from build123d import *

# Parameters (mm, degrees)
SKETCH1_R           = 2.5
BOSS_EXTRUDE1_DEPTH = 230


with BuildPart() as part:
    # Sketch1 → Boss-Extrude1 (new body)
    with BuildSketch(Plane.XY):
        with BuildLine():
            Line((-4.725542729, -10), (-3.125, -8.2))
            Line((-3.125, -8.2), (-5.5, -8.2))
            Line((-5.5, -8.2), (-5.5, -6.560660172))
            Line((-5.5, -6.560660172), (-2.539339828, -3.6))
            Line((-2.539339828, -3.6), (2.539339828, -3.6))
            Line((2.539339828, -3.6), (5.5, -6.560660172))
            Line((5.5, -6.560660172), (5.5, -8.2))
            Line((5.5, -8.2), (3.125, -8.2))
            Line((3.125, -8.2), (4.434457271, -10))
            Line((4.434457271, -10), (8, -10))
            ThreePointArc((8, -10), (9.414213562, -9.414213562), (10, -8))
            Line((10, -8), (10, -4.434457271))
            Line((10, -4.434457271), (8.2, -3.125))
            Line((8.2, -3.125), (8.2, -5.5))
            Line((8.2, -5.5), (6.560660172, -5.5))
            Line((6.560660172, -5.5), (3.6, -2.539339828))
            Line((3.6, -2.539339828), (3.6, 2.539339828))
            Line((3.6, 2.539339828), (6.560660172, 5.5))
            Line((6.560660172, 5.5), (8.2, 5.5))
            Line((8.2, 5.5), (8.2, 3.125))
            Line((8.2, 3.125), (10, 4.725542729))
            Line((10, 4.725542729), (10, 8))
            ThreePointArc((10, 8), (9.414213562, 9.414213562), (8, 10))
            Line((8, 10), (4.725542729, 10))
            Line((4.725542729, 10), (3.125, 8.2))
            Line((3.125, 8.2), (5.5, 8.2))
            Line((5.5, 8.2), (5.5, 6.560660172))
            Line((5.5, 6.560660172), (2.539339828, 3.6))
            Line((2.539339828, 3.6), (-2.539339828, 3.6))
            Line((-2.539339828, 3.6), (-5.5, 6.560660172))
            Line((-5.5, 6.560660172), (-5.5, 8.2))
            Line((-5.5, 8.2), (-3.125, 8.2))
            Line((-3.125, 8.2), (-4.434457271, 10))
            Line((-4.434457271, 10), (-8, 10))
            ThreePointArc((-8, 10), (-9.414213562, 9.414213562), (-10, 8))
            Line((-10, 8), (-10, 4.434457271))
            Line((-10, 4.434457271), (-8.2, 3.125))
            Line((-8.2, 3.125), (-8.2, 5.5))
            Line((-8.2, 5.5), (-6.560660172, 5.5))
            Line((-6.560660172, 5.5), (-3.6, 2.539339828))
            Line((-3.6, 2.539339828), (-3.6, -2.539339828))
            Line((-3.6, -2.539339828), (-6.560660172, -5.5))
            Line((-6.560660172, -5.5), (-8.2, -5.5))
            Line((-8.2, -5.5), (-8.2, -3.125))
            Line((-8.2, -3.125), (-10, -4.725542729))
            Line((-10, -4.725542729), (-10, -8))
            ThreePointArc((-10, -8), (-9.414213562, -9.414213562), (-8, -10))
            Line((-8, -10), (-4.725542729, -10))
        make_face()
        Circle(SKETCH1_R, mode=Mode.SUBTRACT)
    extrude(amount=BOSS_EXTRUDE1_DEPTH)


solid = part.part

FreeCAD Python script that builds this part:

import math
import FreeCAD as App
import Part
import Sketcher

V = App.Vector
Q = App.Units.Quantity

doc = App.newDocument("Part")
body = doc.addObject("PartDesign::Body", "Body")

sketch1 = body.newObject("Sketcher::SketchObject", "Sketch")
sketch1.AttachmentSupport = (doc.getObject("XY_Plane"), [""])
sketch1.MapMode = "FlatFace"
sketch1.addGeometry(Part.LineSegment(V(-4.7, -10, 0), V(-3.1, -8.2, 0)), False)
sketch1.addGeometry(Part.LineSegment(V(-3.1, -8.2, 0), V(-5.5, -8.2, 0)), False)
sketch1.addGeometry(Part.LineSegment(V(-5.5, -8.2, 0), V(-5.5, -6.6, 0)), False)
sketch1.addGeometry(Part.LineSegment(V(-5.5, -6.6, 0), V(-2.5, -3.6, 0)), False)
sketch1.addGeometry(Part.LineSegment(V(-2.5, -3.6, 0), V(2.5, -3.6, 0)), False)
sketch1.addGeometry(Part.LineSegment(V(2.5, -3.6, 0), V(5.5, -6.6, 0)), False)
sketch1.addGeometry(Part.LineSegment(V(5.5, -6.6, 0), V(5.5, -8.2, 0)), False)
sketch1.addGeometry(Part.LineSegment(V(5.5, -8.2, 0), V(3.1, -8.2, 0)), False)
sketch1.addGeometry(Part.LineSegment(V(3.1, -8.2, 0), V(4.4, -10, 0)), False)
sketch1.addGeometry(Part.LineSegment(V(4.4, -10, 0), V(8, -10, 0)), False)
sketch1.addGeometry(Part.ArcOfCircle(Part.Circle(V(8, -8, 0), V(0, 0, 1), 2), math.radians(-90), math.radians(0)), False)
sketch1.addGeometry(Part.LineSegment(V(10, -8, 0), V(10, -4.4, 0)), False)
sketch1.addGeometry(Part.LineSegment(V(10, -4.4, 0), V(8.2, -3.1, 0)), False)
sketch1.addGeometry(Part.LineSegment(V(8.2, -3.1, 0), V(8.2, -5.5, 0)), False)
sketch1.addGeometry(Part.LineSegment(V(8.2, -5.5, 0), V(6.6, -5.5, 0)), False)
sketch1.addGeometry(Part.LineSegment(V(6.6, -5.5, 0), V(3.6, -2.5, 0)), False)
sketch1.addGeometry(Part.LineSegment(V(3.6, -2.5, 0), V(3.6, 2.5, 0)), False)
sketch1.addGeometry(Part.LineSegment(V(3.6, 2.5, 0), V(6.6, 5.5, 0)), False)
sketch1.addGeometry(Part.LineSegment(V(6.6, 5.5, 0), V(8.2, 5.5, 0)), False)
sketch1.addGeometry(Part.LineSegment(V(8.2, 5.5, 0), V(8.2, 3.1, 0)), False)
sketch1.addGeometry(Part.LineSegment(V(8.2, 3.1, 0), V(10, 4.7, 0)), False)
sketch1.addGeometry(Part.LineSegment(V(10, 4.7, 0), V(10, 8, 0)), False)
sketch1.addGeometry(Part.ArcOfCircle(Part.Circle(V(8, 8, 0), V(0, 0, 1), 2), math.radians(0), math.radians(90)), False)
sketch1.addGeometry(Part.LineSegment(V(8, 10, 0), V(4.7, 10, 0)), False)
sketch1.addGeometry(Part.LineSegment(V(4.7, 10, 0), V(3.1, 8.2, 0)), False)
sketch1.addGeometry(Part.LineSegment(V(3.1, 8.2, 0), V(5.5, 8.2, 0)), False)
sketch1.addGeometry(Part.LineSegment(V(5.5, 8.2, 0), V(5.5, 6.6, 0)), False)
sketch1.addGeometry(Part.LineSegment(V(5.5, 6.6, 0), V(2.5, 3.6, 0)), False)
sketch1.addGeometry(Part.LineSegment(V(2.5, 3.6, 0), V(-2.5, 3.6, 0)), False)
sketch1.addGeometry(Part.LineSegment(V(-2.5, 3.6, 0), V(-5.5, 6.6, 0)), False)
sketch1.addGeometry(Part.LineSegment(V(-5.5, 6.6, 0), V(-5.5, 8.2, 0)), False)
sketch1.addGeometry(Part.LineSegment(V(-5.5, 8.2, 0), V(-3.1, 8.2, 0)), False)
sketch1.addGeometry(Part.LineSegment(V(-3.1, 8.2, 0), V(-4.4, 10, 0)), False)
sketch1.addGeometry(Part.LineSegment(V(-4.4, 10, 0), V(-8, 10, 0)), False)
sketch1.addGeometry(Part.ArcOfCircle(Part.Circle(V(-8, 8, 0), V(0, 0, 1), 2), math.radians(90), math.radians(180)), False)
sketch1.addGeometry(Part.LineSegment(V(-10, 8, 0), V(-10, 4.4, 0)), False)
sketch1.addGeometry(Part.LineSegment(V(-10, 4.4, 0), V(-8.2, 3.1, 0)), False)
sketch1.addGeometry(Part.LineSegment(V(-8.2, 3.1, 0), V(-8.2, 5.5, 0)), False)
sketch1.addGeometry(Part.LineSegment(V(-8.2, 5.5, 0), V(-6.6, 5.5, 0)), False)
sketch1.addGeometry(Part.LineSegment(V(-6.6, 5.5, 0), V(-3.6, 2.5, 0)), False)
sketch1.addGeometry(Part.LineSegment(V(-3.6, 2.5, 0), V(-3.6, -2.5, 0)), False)
sketch1.addGeometry(Part.LineSegment(V(-3.6, -2.5, 0), V(-6.6, -5.5, 0)), False)
sketch1.addGeometry(Part.LineSegment(V(-6.6, -5.5, 0), V(-8.2, -5.5, 0)), False)
sketch1.addGeometry(Part.LineSegment(V(-8.2, -5.5, 0), V(-8.2, -3.1, 0)), False)
sketch1.addGeometry(Part.LineSegment(V(-8.2, -3.1, 0), V(-10, -4.7, 0)), False)
sketch1.addGeometry(Part.LineSegment(V(-10, -4.7, 0), V(-10, -8, 0)), False)
sketch1.addGeometry(Part.ArcOfCircle(Part.Circle(V(-8, -8, 0), V(0, 0, 1), 2), math.radians(-180), math.radians(-90)), False)
sketch1.addGeometry(Part.LineSegment(V(-8, -10, 0), V(-4.7, -10, 0)), False)
sketch1.addGeometry(Part.Circle(V(0, 0, 0), V(0, 0, 1), 2.5), False)
sketch1.addConstraint(Sketcher.Constraint("Coincident", 0, 2, 1, 1))
sketch1.addConstraint(Sketcher.Constraint("Coincident", 1, 2, 2, 1))
sketch1.addConstraint(Sketcher.Constraint("Coincident", 2, 2, 3, 1))
sketch1.addConstraint(Sketcher.Constraint("Coincident", 3, 2, 4, 1))
sketch1.addConstraint(Sketcher.Constraint("Coincident", 4, 2, 5, 1))
sketch1.addConstraint(Sketcher.Constraint("Coincident", 5, 2, 6, 1))
sketch1.addConstraint(Sketcher.Constraint("Coincident", 6, 2, 7, 1))
sketch1.addConstraint(Sketcher.Constraint("Coincident", 7, 2, 8, 1))
sketch1.addConstraint(Sketcher.Constraint("Coincident", 8, 2, 9, 1))
sketch1.addConstraint(Sketcher.Constraint("Tangent", 9, 2, 10, 1))
sketch1.addConstraint(Sketcher.Constraint("Tangent", 10, 2, 11, 1))
sketch1.addConstraint(Sketcher.Constraint("Coincident", 11, 2, 12, 1))
sketch1.addConstraint(Sketcher.Constraint("Coincident", 12, 2, 13, 1))
sketch1.addConstraint(Sketcher.Constraint("Coincident", 13, 2, 14, 1))
sketch1.addConstraint(Sketcher.Constraint("Coincident", 14, 2, 15, 1))
sketch1.addConstraint(Sketcher.Constraint("Coincident", 15, 2, 16, 1))
sketch1.addConstraint(Sketcher.Constraint("Coincident", 16, 2, 17, 1))
sketch1.addConstraint(Sketcher.Constraint("Coincident", 17, 2, 18, 1))
sketch1.addConstraint(Sketcher.Constraint("Coincident", 18, 2, 19, 1))
sketch1.addConstraint(Sketcher.Constraint("Coincident", 19, 2, 20, 1))
sketch1.addConstraint(Sketcher.Constraint("Coincident", 20, 2, 21, 1))
sketch1.addConstraint(Sketcher.Constraint("Tangent", 21, 2, 22, 1))
sketch1.addConstraint(Sketcher.Constraint("Tangent", 22, 2, 23, 1))
sketch1.addConstraint(Sketcher.Constraint("Coincident", 23, 2, 24, 1))
sketch1.addConstraint(Sketcher.Constraint("Coincident", 24, 2, 25, 1))
sketch1.addConstraint(Sketcher.Constraint("Coincident", 25, 2, 26, 1))
sketch1.addConstraint(Sketcher.Constraint("Coincident", 26, 2, 27, 1))
sketch1.addConstraint(Sketcher.Constraint("Coincident", 27, 2, 28, 1))
sketch1.addConstraint(Sketcher.Constraint("Coincident", 28, 2, 29, 1))
sketch1.addConstraint(Sketcher.Constraint("Coincident", 29, 2, 30, 1))
sketch1.addConstraint(Sketcher.Constraint("Coincident", 30, 2, 31, 1))
sketch1.addConstraint(Sketcher.Constraint("Coincident", 31, 2, 32, 1))
sketch1.addConstraint(Sketcher.Constraint("Coincident", 32, 2, 33, 1))
sketch1.addConstraint(Sketcher.Constraint("Tangent", 33, 2, 34, 1))
sketch1.addConstraint(Sketcher.Constraint("Tangent", 34, 2, 35, 1))
sketch1.addConstraint(Sketcher.Constraint("Coincident", 35, 2, 36, 1))
sketch1.addConstraint(Sketcher.Constraint("Coincident", 36, 2, 37, 1))
sketch1.addConstraint(Sketcher.Constraint("Coincident", 37, 2, 38, 1))
sketch1.addConstraint(Sketcher.Constraint("Coincident", 38, 2, 39, 1))
sketch1.addConstraint(Sketcher.Constraint("Coincident", 39, 2, 40, 1))
sketch1.addConstraint(Sketcher.Constraint("Coincident", 40, 2, 41, 1))
sketch1.addConstraint(Sketcher.Constraint("Coincident", 41, 2, 42, 1))
sketch1.addConstraint(Sketcher.Constraint("Coincident", 42, 2, 43, 1))
sketch1.addConstraint(Sketcher.Constraint("Coincident", 43, 2, 44, 1))
sketch1.addConstraint(Sketcher.Constraint("Coincident", 44, 2, 45, 1))
sketch1.addConstraint(Sketcher.Constraint("Tangent", 45, 2, 46, 1))
sketch1.addConstraint(Sketcher.Constraint("Tangent", 46, 2, 47, 1))
sketch1.addConstraint(Sketcher.Constraint("Coincident", 47, 2, 0, 1))
sketch1.addConstraint(Sketcher.Constraint("Horizontal", 1))
sketch1.addConstraint(Sketcher.Constraint("Vertical", 2))
sketch1.addConstraint(Sketcher.Constraint("Horizontal", 4))
sketch1.addConstraint(Sketcher.Constraint("Vertical", 6))
sketch1.addConstraint(Sketcher.Constraint("Horizontal", 7))
sketch1.addConstraint(Sketcher.Constraint("Horizontal", 9))
sketch1.addConstraint(Sketcher.Constraint("Vertical", 11))
sketch1.addConstraint(Sketcher.Constraint("Vertical", 13))
sketch1.addConstraint(Sketcher.Constraint("Horizontal", 14))
sketch1.addConstraint(Sketcher.Constraint("Vertical", 16))
sketch1.addConstraint(Sketcher.Constraint("Horizontal", 18))
sketch1.addConstraint(Sketcher.Constraint("Vertical", 19))
sketch1.addConstraint(Sketcher.Constraint("Vertical", 21))
sketch1.addConstraint(Sketcher.Constraint("Horizontal", 23))
sketch1.addConstraint(Sketcher.Constraint("Horizontal", 25))
sketch1.addConstraint(Sketcher.Constraint("Vertical", 26))
sketch1.addConstraint(Sketcher.Constraint("Horizontal", 28))
sketch1.addConstraint(Sketcher.Constraint("Vertical", 30))
sketch1.addConstraint(Sketcher.Constraint("Horizontal", 31))
sketch1.addConstraint(Sketcher.Constraint("Horizontal", 33))
sketch1.addConstraint(Sketcher.Constraint("Vertical", 35))
sketch1.addConstraint(Sketcher.Constraint("Vertical", 37))
sketch1.addConstraint(Sketcher.Constraint("Horizontal", 38))
sketch1.addConstraint(Sketcher.Constraint("Vertical", 40))
sketch1.addConstraint(Sketcher.Constraint("Horizontal", 42))
sketch1.addConstraint(Sketcher.Constraint("Vertical", 43))
sketch1.addConstraint(Sketcher.Constraint("Vertical", 45))
sketch1.addConstraint(Sketcher.Constraint("Horizontal", 47))
sketch1.addConstraint(Sketcher.Constraint("Coincident", 48, 3, -1, 1))
sketch1.addConstraint(Sketcher.Constraint("Equal", 10, 22))
sketch1.addConstraint(Sketcher.Constraint("Equal", 22, 34))
sketch1.addConstraint(Sketcher.Constraint("Equal", 34, 46))
sketch1.addConstraint(Sketcher.Constraint("Symmetric", 10, 3, 34, 3, -1, 1))
sketch1.addConstraint(Sketcher.Constraint("Symmetric", 22, 3, 46, 3, -1, 1))
sketch1.addConstraint(Sketcher.Constraint("Symmetric", 0, 2, 24, 2, -1, 1))
sketch1.addConstraint(Sketcher.Constraint("Symmetric", 2, 2, 26, 2, -1, 1))
sketch1.addConstraint(Sketcher.Constraint("Symmetric", 3, 2, 27, 2, -1, 1))
sketch1.addConstraint(Sketcher.Constraint("Symmetric", 5, 2, 29, 2, -1, 1))
sketch1.addConstraint(Sketcher.Constraint("Symmetric", 7, 2, 31, 2, -1, 1))
sketch1.addConstraint(Sketcher.Constraint("Symmetric", 12, 2, 36, 2, -1, 1))
sketch1.addConstraint(Sketcher.Constraint("Symmetric", 14, 2, 38, 2, -1, 1))
sketch1.addConstraint(Sketcher.Constraint("Symmetric", 15, 2, 39, 2, -1, 1))
sketch1.addConstraint(Sketcher.Constraint("Symmetric", 17, 2, 41, 2, -1, 1))
sketch1.addConstraint(Sketcher.Constraint("Symmetric", 19, 2, 43, 2, -1, 1))
sketch1.addConstraint(Sketcher.Constraint("Symmetric", 22, 3, 34, 3, -2))
sketch1.addConstraint(Sketcher.Constraint("Symmetric", 2, 2, 5, 2, -2))
sketch1.addConstraint(Sketcher.Constraint("Symmetric", 0, 2, 7, 2, -2))
sketch1.addConstraint(Sketcher.Constraint("Symmetric", 19, 2, 36, 2, -2))
sketch1.addConstraint(Sketcher.Constraint("Symmetric", 17, 2, 38, 2, -2))
sketch1.addConstraint(Sketcher.Constraint("Perpendicular", 3, 5))
sketch1.addConstraint(Sketcher.Constraint("Parallel", 5, 15))
sketch1.addConstraint(Sketcher.Constraint("Perpendicular", 15, 17))
sketch1.addConstraint(Sketcher.Constraint("Parallel", 0, 24))
sketch1.addConstraint(Sketcher.Constraint("Perpendicular", 27, 29))
sketch1.addConstraint(Sketcher.Constraint("Parallel", 8, 32))
sketch1.addConstraint(Sketcher.Constraint("Parallel", 12, 36))
sketch1.addConstraint(Sketcher.Constraint("Perpendicular", 39, 41))
sketch1.addConstraint(Sketcher.Constraint("Parallel", 20, 44))
sketch1.addConstraint(Sketcher.Constraint("Horizontal", 16, 2, 39, 2))
sketch1.addConstraint(Sketcher.Constraint("Equal", 42, 2))
sketch1.addConstraint(Sketcher.Constraint("Equal", 33, 11))
sketch1.addConstraint(Sketcher.Constraint("Equal", 31, 13))
sketch1.addConstraint(Sketcher.Constraint("Equal", 28, 16))
sketch1.addConstraint(Sketcher.Constraint("Equal", 47, 21))
sketch1.addConstraint(Sketcher.Constraint("Equal", 8, 12))
sketch1.addConstraint(Sketcher.Constraint("Equal", 5, 15))
sketch1.addConstraint(Sketcher.Constraint("Equal", 0, 20))
sketch1.addConstraint(Sketcher.Constraint("Diameter", 48, Q("5 mm")))
sketch1.addConstraint(Sketcher.Constraint("Radius", 10, Q("2 mm")))
sketch1.addConstraint(Sketcher.Constraint("DistanceX", -1, 1, 10, 3, Q("8 mm")))
sketch1.addConstraint(Sketcher.Constraint("DistanceY", 0, 2, -1, 1, Q("8.2 mm")))
sketch1.addConstraint(Sketcher.Constraint("DistanceX", 1, 2, -1, 1, Q("5.5 mm")))
sketch1.addConstraint(Sketcher.Constraint("DistanceY", 3, 2, -1, 1, Q("3.6 mm")))
sketch1.addConstraint(Sketcher.Constraint("DistanceX", 1, 2, 1, 1, Q("2.375 mm")))
sketch1.addConstraint(Sketcher.Constraint("DistanceX", 4, 1, 4, 2, Q("5.07868 mm")))
sketch1.addConstraint(Sketcher.Constraint("Distance", 0, Q("2.40868 mm")))
sketch1.addConstraint(Sketcher.Constraint("Distance", 8, Q("2.225911 mm")))
pad1 = body.newObject("PartDesign::Pad", "Pad")
pad1.Profile = sketch1
pad1.Length = 230

doc.recompute()
